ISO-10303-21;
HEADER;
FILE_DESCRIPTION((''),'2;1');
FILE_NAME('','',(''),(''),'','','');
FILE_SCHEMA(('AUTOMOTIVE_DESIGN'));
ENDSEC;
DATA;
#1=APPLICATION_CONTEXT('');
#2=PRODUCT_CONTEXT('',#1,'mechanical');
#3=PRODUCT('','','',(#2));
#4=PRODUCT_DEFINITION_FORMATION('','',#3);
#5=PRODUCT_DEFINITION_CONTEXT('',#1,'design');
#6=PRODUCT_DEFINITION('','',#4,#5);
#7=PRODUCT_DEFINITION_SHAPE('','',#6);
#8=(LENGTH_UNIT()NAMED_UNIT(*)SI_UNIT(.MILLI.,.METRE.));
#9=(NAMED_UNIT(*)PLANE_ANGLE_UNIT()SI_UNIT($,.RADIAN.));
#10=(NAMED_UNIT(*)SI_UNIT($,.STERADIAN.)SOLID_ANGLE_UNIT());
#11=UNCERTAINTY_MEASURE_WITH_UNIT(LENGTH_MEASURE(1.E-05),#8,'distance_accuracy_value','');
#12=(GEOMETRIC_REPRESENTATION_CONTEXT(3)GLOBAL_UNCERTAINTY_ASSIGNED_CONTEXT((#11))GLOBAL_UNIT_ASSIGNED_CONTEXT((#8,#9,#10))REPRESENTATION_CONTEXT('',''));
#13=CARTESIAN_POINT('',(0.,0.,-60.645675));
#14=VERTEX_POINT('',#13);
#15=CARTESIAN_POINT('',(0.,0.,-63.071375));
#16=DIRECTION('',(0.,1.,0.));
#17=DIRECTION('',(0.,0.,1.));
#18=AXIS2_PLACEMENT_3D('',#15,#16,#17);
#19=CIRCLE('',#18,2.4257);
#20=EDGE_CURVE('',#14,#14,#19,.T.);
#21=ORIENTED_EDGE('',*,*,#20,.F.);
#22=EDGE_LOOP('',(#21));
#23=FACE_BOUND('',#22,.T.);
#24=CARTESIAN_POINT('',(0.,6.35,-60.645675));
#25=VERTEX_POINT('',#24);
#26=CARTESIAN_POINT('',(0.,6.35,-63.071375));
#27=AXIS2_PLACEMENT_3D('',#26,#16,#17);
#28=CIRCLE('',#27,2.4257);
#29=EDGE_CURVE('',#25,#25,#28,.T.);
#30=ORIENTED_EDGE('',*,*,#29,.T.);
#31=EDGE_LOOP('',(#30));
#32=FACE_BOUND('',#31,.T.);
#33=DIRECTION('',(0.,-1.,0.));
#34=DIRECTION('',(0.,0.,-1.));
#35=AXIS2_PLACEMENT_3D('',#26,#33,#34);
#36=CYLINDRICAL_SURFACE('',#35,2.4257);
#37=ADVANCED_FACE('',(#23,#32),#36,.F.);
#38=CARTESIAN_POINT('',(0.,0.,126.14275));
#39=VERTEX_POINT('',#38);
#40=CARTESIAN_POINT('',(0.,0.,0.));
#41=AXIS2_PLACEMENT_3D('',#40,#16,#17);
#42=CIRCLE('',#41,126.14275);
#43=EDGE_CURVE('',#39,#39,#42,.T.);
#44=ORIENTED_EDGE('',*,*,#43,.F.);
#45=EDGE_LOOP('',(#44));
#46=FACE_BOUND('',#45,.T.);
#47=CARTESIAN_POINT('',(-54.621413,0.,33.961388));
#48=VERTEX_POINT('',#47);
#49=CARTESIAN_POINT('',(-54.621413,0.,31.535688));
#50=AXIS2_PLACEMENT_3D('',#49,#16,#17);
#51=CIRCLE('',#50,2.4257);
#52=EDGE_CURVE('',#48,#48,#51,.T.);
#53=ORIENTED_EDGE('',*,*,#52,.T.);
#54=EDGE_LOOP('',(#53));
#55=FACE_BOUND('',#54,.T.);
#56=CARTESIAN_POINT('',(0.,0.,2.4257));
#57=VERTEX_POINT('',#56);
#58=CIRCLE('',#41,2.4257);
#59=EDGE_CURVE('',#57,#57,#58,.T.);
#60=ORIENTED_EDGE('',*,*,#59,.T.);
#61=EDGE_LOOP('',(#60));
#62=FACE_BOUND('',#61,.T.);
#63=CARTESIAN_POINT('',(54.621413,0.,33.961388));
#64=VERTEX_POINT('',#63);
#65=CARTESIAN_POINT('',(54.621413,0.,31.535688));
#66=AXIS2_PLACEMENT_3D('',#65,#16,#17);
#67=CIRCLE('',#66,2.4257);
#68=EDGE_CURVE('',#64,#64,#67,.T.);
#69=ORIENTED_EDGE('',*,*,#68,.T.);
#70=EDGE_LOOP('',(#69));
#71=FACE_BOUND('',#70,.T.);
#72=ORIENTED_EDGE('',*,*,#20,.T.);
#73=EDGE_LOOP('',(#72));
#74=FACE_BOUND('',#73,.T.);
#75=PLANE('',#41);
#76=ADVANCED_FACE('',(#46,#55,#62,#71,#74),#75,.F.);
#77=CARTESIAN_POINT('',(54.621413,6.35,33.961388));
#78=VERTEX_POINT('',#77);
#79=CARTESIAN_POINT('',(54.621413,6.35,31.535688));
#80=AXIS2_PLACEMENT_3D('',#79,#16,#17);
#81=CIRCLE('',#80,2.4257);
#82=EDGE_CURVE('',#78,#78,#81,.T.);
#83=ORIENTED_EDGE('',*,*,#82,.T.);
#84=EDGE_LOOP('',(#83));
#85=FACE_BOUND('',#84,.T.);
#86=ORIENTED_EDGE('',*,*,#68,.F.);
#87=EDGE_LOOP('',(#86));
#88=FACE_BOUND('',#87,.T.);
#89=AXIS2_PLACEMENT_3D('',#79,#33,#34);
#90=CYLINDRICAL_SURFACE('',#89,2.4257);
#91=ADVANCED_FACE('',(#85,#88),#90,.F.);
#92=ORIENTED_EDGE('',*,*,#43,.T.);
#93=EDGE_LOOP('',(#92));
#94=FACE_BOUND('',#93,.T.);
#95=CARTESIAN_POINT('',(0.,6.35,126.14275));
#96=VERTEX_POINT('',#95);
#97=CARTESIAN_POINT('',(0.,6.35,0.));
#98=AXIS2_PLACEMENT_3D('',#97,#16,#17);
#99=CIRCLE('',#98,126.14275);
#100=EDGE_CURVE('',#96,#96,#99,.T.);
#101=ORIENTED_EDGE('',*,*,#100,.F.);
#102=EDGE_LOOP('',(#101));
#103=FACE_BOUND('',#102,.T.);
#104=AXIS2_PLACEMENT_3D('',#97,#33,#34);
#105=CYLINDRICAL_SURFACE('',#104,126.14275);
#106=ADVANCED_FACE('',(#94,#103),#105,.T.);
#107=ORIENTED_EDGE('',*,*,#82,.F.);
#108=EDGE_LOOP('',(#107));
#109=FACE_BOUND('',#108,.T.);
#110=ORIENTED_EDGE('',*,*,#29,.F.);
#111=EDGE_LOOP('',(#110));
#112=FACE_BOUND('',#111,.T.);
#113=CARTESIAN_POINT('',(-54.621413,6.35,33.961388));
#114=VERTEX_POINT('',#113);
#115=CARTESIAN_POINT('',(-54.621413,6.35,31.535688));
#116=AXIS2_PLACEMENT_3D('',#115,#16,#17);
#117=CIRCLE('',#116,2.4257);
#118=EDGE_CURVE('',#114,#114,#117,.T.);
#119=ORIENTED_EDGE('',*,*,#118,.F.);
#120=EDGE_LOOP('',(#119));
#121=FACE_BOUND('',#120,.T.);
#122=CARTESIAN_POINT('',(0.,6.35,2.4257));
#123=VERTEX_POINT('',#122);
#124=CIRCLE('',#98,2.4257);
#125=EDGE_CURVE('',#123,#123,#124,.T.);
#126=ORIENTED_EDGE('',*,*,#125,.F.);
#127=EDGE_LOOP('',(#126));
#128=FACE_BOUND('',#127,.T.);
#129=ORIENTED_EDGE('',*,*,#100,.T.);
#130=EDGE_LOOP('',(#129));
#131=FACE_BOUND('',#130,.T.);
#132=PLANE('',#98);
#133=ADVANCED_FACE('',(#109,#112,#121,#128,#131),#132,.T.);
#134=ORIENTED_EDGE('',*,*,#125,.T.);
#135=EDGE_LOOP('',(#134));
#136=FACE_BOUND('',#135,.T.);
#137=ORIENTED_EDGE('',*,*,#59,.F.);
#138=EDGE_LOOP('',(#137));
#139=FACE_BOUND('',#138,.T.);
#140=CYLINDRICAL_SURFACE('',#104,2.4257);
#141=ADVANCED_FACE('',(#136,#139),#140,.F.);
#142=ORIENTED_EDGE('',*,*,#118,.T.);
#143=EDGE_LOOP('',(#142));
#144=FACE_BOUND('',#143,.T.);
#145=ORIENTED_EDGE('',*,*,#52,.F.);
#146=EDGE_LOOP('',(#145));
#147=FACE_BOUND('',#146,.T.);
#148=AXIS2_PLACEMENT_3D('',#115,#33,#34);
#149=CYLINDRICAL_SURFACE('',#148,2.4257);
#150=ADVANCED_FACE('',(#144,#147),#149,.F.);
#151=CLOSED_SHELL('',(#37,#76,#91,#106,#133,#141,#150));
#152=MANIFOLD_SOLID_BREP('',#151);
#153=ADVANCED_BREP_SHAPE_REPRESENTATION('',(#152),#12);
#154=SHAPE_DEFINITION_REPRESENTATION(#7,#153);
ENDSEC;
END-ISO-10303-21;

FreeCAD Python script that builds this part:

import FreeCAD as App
import Part
import Sketcher

V = App.Vector
Q = App.Units.Quantity

doc = App.newDocument("Part")
body = doc.addObject("PartDesign::Body", "Body")

# Sketch on XZ plane
sketch1 = body.newObject("Sketcher::SketchObject", "Sketch")
sketch1.AttachmentSupport = (doc.getObject("XZ_Plane"), [""])
sketch1.MapMode = "FlatFace"
sketch1.addGeometry([
    Part.Circle(V(0, 0, 0), V(0, 0, 1), 126.1),  # 0
    Part.Circle(V(0, -63.1, 0), V(0, 0, 1), 2.4),  # 1
    Part.Circle(V(-54.6, 31.5, 0), V(0, 0, 1), 2.4),  # 2
    Part.Circle(V(0, 0, 0), V(0, 0, 1), 2.4),  # 3
    Part.Circle(V(54.6, 31.5, 0), V(0, 0, 1), 2.4),  # 4
], False)
sketch1.addConstraint([
    Sketcher.Constraint("Coincident", 0, 3, -1, 1),
    Sketcher.Constraint("Coincident", 3, 3, -1, 1),
    Sketcher.Constraint("Equal", 1, 2),
    Sketcher.Constraint("Equal", 2, 3),
    Sketcher.Constraint("Equal", 3, 4),
    Sketcher.Constraint("Symmetric", 2, 3, 4, 3, -2),
    Sketcher.Constraint("PointOnObject", 1, 3, -2),
    Sketcher.Constraint("Diameter", 1, Q("0.191 in")),
    Sketcher.Constraint("Diameter", 0, Q("9.9325 in")),
    Sketcher.Constraint("DistanceY", 1, 3, -1, 1, 63.071375),
    Sketcher.Constraint("DistanceX", 2, 3, -1, 1, 54.621413),
    Sketcher.Constraint("DistanceY", -1, 1, 2, 3, 31.535688),
])
pad1 = body.newObject("PartDesign::Pad", "Pad")
pad1.Profile = sketch1
pad1.Length = Q("0.25 in")
pad1.Reversed = True

doc.recompute()
